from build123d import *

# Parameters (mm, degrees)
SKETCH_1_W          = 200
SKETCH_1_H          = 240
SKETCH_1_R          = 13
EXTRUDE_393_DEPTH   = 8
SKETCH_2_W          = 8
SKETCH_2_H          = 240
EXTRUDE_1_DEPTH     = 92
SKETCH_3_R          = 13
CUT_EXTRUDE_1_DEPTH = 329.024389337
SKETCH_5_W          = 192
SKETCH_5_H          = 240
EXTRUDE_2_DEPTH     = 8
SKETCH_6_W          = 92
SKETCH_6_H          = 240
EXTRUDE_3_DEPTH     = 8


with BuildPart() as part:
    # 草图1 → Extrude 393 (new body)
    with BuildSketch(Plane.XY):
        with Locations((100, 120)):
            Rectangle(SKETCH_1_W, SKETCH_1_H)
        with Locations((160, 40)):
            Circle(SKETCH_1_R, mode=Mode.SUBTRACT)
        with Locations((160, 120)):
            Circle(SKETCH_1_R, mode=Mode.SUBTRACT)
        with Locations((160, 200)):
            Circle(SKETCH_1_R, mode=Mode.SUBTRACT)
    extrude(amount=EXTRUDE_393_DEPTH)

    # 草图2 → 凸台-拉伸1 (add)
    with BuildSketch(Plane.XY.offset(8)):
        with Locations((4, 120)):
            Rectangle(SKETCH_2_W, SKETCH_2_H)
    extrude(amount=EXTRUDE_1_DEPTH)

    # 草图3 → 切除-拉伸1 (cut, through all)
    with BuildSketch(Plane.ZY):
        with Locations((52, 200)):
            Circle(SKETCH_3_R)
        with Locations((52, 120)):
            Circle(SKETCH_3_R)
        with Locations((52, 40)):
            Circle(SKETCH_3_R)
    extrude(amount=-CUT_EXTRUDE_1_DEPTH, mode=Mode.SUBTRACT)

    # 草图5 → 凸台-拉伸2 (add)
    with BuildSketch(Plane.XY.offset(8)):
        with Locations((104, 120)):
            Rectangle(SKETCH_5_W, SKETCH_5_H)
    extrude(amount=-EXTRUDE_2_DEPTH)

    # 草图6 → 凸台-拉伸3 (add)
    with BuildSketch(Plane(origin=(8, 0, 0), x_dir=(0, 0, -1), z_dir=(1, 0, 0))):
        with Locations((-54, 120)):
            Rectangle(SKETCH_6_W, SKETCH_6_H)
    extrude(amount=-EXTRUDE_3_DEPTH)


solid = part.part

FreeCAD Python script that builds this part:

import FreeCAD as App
import Part
import Sketcher


def add_polygon(sketch, points):
    """Adds a closed chain of lines whose ends are joined by coincident constraints."""
    first, n = sketch.GeometryCount, len(points)
    for a, b in zip(points, points[1:] + points[:1]):
        sketch.addGeometry(Part.LineSegment(App.Vector(*a, 0), App.Vector(*b, 0)), False)
    for i in range(n):
        sketch.addConstraint(Sketcher.Constraint("Coincident", first + i, 2, first + (i + 1) % n, 1))

doc = App.newDocument("Part")
body = doc.addObject("PartDesign::Body", "Body")

# Sketch on XY plane
sketch1 = doc.addObject("Sketcher::SketchObject", "Sketch")
body.addObject(sketch1)
sketch1.AttachmentSupport = (doc.XY_Plane, [""])
sketch1.MapMode = "FlatFace"
add_polygon(sketch1, [(0, 240), (0, 0), (200, 0), (200, 240)])  # lines 0-3
sketch1.addGeometry(Part.Circle(App.Vector(160, 40, 0), App.Vector(0, 0, 1), 13), False)  # 4
sketch1.addGeometry(Part.Circle(App.Vector(160, 120, 0), App.Vector(0, 0, 1), 13), False)  # 5
sketch1.addGeometry(Part.Circle(App.Vector(160, 200, 0), App.Vector(0, 0, 1), 13), False)  # 6
sketch1.addConstraint(Sketcher.Constraint("Vertical", 0))
sketch1.addConstraint(Sketcher.Constraint("Horizontal", 1))
sketch1.addConstraint(Sketcher.Constraint("Vertical", 2))
sketch1.addConstraint(Sketcher.Constraint("Horizontal", 3))
sketch1.addConstraint(Sketcher.Constraint("Coincident", 0, 2, -1, 1))
sketch1.addConstraint(Sketcher.Constraint("Equal", 4, 5))
sketch1.addConstraint(Sketcher.Constraint("Equal", 5, 6))
sketch1.addConstraint(Sketcher.Constraint("Vertical", 4, 3, 5, 3))
sketch1.addConstraint(Sketcher.Constraint("Vertical", 5, 3, 6, 3))
sketch1.addConstraint(Sketcher.Constraint("Diameter", 4, 26.0))
sketch1.addConstraint(Sketcher.Constraint("DistanceX", 1, 1, 1, 2, 200.0))
sketch1.addConstraint(Sketcher.Constraint("DistanceY", 0, 2, 0, 1, 240.0))
sketch1.addConstraint(Sketcher.Constraint("DistanceX", -1, 1, 4, 3, 160.0))
sketch1.addConstraint(Sketcher.Constraint("DistanceY", -1, 1, 4, 3, 40.0))
sketch1.addConstraint(Sketcher.Constraint("DistanceY", -1, 1, 5, 3, 120.0))
sketch1.addConstraint(Sketcher.Constraint("DistanceY", -1, 1, 6, 3, 200.0))
pad1 = doc.addObject("PartDesign::Pad", "Pad")
body.addObject(pad1)
pad1.Profile = sketch1
pad1.Length = 8

# Sketch on XY plane
sketch2 = doc.addObject("Sketcher::SketchObject", "Sketch001")
body.addObject(sketch2)
sketch2.AttachmentSupport = (doc.XY_Plane, [""])
sketch2.MapMode = "FlatFace"
sketch2.AttachmentOffset = App.Placement(App.Vector(0, 0, 8), App.Rotation())
add_polygon(sketch2, [(0, 240), (0, 0), (8, 0), (8, 240)])  # lines 0-3
sketch2.addConstraint(Sketcher.Constraint("Vertical", 0))
sketch2.addConstraint(Sketcher.Constraint("Horizontal", 1))
sketch2.addConstraint(Sketcher.Constraint("Vertical", 2))
sketch2.addConstraint(Sketcher.Constraint("Horizontal", 3))
sketch2.addConstraint(Sketcher.Constraint("Coincident", 0, 2, -1, 1))
sketch2.addConstraint(Sketcher.Constraint("DistanceX", 1, 1, 1, 2, 8.0))
sketch2.addConstraint(Sketcher.Constraint("DistanceY", 0, 2, 0, 1, 240.0))
pad2 = doc.addObject("PartDesign::Pad", "Pad001")
body.addObject(pad2)
pad2.Profile = sketch2
pad2.Length = 92

# Sketch on YZ plane
sketch3 = doc.addObject("Sketcher::SketchObject", "Sketch002")
body.addObject(sketch3)
sketch3.AttachmentSupport = (doc.YZ_Plane, [""])
sketch3.MapMode = "FlatFace"
sketch3.addGeometry(Part.Circle(App.Vector(200, 52, 0), App.Vector(0, 0, 1), 13), False)
sketch3.addGeometry(Part.Circle(App.Vector(120, 52, 0), App.Vector(0, 0, 1), 13), False)
sketch3.addGeometry(Part.Circle(App.Vector(40, 52, 0), App.Vector(0, 0, 1), 13), False)
sketch3.addConstraint(Sketcher.Constraint("Equal", 0, 1))
sketch3.addConstraint(Sketcher.Constraint("Equal", 1, 2))
sketch3.addConstraint(Sketcher.Constraint("Horizontal", 0, 3, 1, 3))
sketch3.addConstraint(Sketcher.Constraint("Horizontal", 1, 3, 2, 3))
sketch3.addConstraint(Sketcher.Constraint("Diameter", 0, 26.0))
sketch3.addConstraint(Sketcher.Constraint("DistanceX", -1, 1, 0, 3, 200.0))
sketch3.addConstraint(Sketcher.Constraint("DistanceY", -1, 1, 0, 3, 52.0))
sketch3.addConstraint(Sketcher.Constraint("DistanceX", -1, 1, 1, 3, 120.0))
sketch3.addConstraint(Sketcher.Constraint("DistanceX", -1, 1, 2, 3, 40.0))
pocket1 = doc.addObject("PartDesign::Pocket", "Pocket")
body.addObject(pocket1)
pocket1.Profile = sketch3
pocket1.Type = "ThroughAll"
pocket1.Reversed = True

# Sketch on XY plane
sketch4 = doc.addObject("Sketcher::SketchObject", "Sketch003")
body.addObject(sketch4)
sketch4.AttachmentSupport = (doc.XY_Plane, [""])
sketch4.MapMode = "FlatFace"
sketch4.AttachmentOffset = App.Placement(App.Vector(0, 0, 8), App.Rotation())
add_polygon(sketch4, [(8, 240), (8, 0), (200, 0), (200, 240)])  # lines 0-3
sketch4.addConstraint(Sketcher.Constraint("Vertical", 0))
sketch4.addConstraint(Sketcher.Constraint("Horizontal", 1))
sketch4.addConstraint(Sketcher.Constraint("Vertical", 2))
sketch4.addConstraint(Sketcher.Constraint("Horizontal", 3))
sketch4.addConstraint(Sketcher.Constraint("PointOnObject", 0, 2, -1))
sketch4.addConstraint(Sketcher.Constraint("DistanceX", 1, 1, 1, 2, 192.0))
sketch4.addConstraint(Sketcher.Constraint("DistanceY", 0, 2, 0, 1, 240.0))
sketch4.addConstraint(Sketcher.Constraint("DistanceX", -1, 1, 0, 2, 8.0))
pad3 = doc.addObject("PartDesign::Pad", "Pad002")
body.addObject(pad3)
pad3.Profile = sketch4
pad3.Length = 8
pad3.Reversed = True

# Sketch on YZ plane
sketch5 = doc.addObject("Sketcher::SketchObject", "Sketch004")
body.addObject(sketch5)
sketch5.AttachmentSupport = (doc.YZ_Plane, [""])
sketch5.MapMode = "FlatFace"
sketch5.AttachmentOffset = App.Placement(App.Vector(0, 0, 8), App.Rotation())
add_polygon(sketch5, [(240, 100), (0, 100), (0, 8), (240, 8)])  # lines 0-3
sketch5.addConstraint(Sketcher.Constraint("Horizontal", 0))
sketch5.addConstraint(Sketcher.Constraint("Vertical", 1))
sketch5.addConstraint(Sketcher.Constraint("Horizontal", 2))
sketch5.addConstraint(Sketcher.Constraint("Vertical", 3))
sketch5.addConstraint(Sketcher.Constraint("PointOnObject", 0, 2, -2))
sketch5.addConstraint(Sketcher.Constraint("DistanceX", 0, 2, 0, 1, 240.0))
sketch5.addConstraint(Sketcher.Constraint("DistanceY", 1, 2, 1, 1, 92.0))
sketch5.addConstraint(Sketcher.Constraint("DistanceY", -1, 1, 0, 2, 100.0))
pad4 = doc.addObject("PartDesign::Pad", "Pad003")
body.addObject(pad4)
pad4.Profile = sketch5
pad4.Length = 8
pad4.Reversed = True

doc.recompute()
